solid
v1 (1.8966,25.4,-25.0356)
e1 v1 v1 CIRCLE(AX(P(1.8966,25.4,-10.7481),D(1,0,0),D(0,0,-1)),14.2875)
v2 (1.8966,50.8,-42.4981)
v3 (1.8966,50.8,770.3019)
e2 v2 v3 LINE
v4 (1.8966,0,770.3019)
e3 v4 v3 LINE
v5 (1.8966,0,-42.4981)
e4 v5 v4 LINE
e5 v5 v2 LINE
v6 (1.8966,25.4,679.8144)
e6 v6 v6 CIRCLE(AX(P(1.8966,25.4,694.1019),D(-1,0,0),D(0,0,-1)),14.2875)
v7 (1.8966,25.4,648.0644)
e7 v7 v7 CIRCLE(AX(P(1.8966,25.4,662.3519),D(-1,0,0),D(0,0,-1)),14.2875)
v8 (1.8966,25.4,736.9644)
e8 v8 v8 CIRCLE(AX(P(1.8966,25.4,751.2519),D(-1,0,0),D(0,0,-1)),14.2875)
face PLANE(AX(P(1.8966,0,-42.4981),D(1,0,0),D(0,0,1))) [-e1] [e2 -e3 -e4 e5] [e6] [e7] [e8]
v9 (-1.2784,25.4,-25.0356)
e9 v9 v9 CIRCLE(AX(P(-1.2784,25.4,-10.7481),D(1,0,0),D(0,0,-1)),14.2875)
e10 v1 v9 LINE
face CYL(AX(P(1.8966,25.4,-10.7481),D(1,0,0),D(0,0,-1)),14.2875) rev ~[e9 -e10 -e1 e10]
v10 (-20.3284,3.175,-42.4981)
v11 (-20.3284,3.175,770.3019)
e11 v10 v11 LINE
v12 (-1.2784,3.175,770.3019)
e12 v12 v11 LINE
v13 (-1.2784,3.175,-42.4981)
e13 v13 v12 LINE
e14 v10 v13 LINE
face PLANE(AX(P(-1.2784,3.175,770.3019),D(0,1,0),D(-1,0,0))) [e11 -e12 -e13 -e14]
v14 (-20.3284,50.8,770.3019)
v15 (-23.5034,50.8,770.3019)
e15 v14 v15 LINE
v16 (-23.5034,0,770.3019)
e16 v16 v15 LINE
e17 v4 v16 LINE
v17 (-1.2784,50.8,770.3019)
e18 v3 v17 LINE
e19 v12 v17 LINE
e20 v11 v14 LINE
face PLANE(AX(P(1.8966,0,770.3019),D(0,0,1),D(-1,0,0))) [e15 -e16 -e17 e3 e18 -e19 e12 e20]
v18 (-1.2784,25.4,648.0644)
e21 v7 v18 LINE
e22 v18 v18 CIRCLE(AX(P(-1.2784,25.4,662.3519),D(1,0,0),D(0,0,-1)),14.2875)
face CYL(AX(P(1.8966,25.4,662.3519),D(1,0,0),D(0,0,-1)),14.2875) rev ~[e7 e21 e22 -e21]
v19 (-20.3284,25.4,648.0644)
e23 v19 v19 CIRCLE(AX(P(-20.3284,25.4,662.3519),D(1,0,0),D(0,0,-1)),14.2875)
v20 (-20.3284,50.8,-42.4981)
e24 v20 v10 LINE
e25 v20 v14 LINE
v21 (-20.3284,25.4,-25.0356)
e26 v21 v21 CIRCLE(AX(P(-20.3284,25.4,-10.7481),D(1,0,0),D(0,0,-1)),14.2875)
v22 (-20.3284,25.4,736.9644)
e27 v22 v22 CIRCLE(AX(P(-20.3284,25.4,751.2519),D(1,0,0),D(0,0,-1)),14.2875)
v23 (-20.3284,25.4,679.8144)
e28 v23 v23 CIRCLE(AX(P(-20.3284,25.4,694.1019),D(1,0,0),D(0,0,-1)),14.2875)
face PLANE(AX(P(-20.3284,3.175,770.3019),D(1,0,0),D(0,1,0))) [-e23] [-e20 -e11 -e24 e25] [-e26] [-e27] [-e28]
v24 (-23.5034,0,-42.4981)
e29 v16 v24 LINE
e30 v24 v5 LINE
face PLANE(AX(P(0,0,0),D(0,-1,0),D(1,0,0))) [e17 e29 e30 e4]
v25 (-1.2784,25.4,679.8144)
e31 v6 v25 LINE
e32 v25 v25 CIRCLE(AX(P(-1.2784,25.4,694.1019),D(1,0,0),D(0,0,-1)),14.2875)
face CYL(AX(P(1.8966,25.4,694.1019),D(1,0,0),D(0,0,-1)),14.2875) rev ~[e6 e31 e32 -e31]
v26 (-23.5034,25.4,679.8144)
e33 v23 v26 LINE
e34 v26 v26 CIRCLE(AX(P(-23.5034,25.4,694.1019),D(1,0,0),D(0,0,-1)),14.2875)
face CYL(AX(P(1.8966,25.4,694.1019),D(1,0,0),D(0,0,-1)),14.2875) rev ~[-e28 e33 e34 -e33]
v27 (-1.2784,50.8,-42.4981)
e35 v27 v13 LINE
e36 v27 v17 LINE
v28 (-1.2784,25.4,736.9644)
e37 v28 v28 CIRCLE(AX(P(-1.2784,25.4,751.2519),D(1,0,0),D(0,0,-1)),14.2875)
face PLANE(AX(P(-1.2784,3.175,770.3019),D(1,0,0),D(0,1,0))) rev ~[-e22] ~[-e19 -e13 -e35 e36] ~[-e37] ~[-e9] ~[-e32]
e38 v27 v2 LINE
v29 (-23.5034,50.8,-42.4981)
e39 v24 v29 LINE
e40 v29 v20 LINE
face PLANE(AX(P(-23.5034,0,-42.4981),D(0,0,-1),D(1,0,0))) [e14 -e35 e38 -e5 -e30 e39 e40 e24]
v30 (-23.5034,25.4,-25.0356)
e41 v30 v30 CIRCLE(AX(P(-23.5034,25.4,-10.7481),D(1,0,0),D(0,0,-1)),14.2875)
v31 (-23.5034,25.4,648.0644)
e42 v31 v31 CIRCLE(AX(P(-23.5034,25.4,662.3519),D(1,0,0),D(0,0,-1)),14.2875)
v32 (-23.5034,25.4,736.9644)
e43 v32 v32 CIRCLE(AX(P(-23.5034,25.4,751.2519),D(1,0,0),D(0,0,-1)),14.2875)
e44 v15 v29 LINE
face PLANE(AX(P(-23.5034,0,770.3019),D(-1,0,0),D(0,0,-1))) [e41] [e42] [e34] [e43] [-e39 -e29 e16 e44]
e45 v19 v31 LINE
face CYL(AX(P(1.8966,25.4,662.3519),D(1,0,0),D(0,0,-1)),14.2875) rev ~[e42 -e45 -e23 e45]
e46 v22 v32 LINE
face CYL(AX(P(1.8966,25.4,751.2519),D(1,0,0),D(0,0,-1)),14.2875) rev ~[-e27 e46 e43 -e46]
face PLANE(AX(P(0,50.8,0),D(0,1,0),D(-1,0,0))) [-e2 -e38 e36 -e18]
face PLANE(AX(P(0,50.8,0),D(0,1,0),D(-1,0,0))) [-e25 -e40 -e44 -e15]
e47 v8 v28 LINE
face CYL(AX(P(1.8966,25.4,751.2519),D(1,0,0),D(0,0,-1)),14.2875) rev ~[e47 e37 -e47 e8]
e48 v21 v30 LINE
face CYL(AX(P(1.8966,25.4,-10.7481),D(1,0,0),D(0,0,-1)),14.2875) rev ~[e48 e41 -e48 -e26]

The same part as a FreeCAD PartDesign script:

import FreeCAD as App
import Part
import Sketcher

V = App.Vector
Q = App.Units.Quantity


def add_polygon(sketch, points):
    """Adds a closed chain of lines whose ends are joined by coincident constraints."""
    first, n = sketch.GeometryCount, len(points)
    for a, b in zip(points, points[1:] + points[:1]):
        sketch.addGeometry(Part.LineSegment(App.Vector(*a, 0), App.Vector(*b, 0)), False)
    for i in range(n):
        sketch.addConstraint(Sketcher.Constraint("Coincident", first + i, 2, first + (i + 1) % n, 1))

doc = App.newDocument("Part")
params = doc.addObject("Spreadsheet::Sheet", "Params")
for row, (alias, value) in enumerate([
    ("sketch1_width", "0.75 in"),
    ("sketch1_height", "31.75 in"),
    ("pad1_length", "0.125 in"),
    ("sketch2_width", "1 in"),
    ("sketch2_height", "32 in"),
    ("pad2_length", "2 in"),
    ("sketch3_width", "0.75 in"),
    ("pocket1_length", "40 in"),
    ("sketch4_diameter", "1.125 in"),
    ("pocket2_length", "2 in"),
    ("sketch5_diameter", "1.125 in"),
    ("pocket3_length", "3 in"),
], start=1):
    params.set(f"A{row}", alias)
    params.set(f"B{row}", "=" + value)
    params.setAlias(f"B{row}", alias)

body = doc.addObject("PartDesign::Body", "Body")

sketch1 = doc.addObject("Sketcher::SketchObject", "Sketch")
body.addObject(sketch1)
sketch1.AttachmentSupport = (doc.XZ_Plane, [""])
sketch1.MapMode = "FlatFace"
add_polygon(sketch1, [(-20.3284, -39.3231), (-1.2784, -39.3231), (-1.2784, 767.1269), (-20.3284, 767.1269)])
sketch1.addConstraint([
    Sketcher.Constraint("Horizontal", 0),
    Sketcher.Constraint("Vertical", 1),
    Sketcher.Constraint("Horizontal", 2),
    Sketcher.Constraint("Vertical", 3),
    Sketcher.Constraint("DistanceX", 0, 1, 0, 2, Q("0.75 in")),
    Sketcher.Constraint("DistanceY", 1, 1, 1, 2, Q("31.75 in")),
    Sketcher.Constraint("DistanceX", 0, 2, -1, 1, 1.2784),
    Sketcher.Constraint("DistanceY", 0, 2, -1, 1, 39.323),
])
sketch1.setExpression("Constraints[8]", "Params.sketch1_width")
sketch1.setExpression("Constraints[9]", "Params.sketch1_height")
pad1 = doc.addObject("PartDesign::Pad", "Pad")
body.addObject(pad1)
pad1.Profile = sketch1
pad1.setExpression("Length", "Params.pad1_length")
pad1.Reversed = True

sketch2 = doc.addObject("Sketcher::SketchObject", "Sketch001")
body.addObject(sketch2)
sketch2.AttachmentSupport = (doc.XZ_Plane, [""])
sketch2.MapMode = "FlatFace"
add_polygon(sketch2, [(1.8966, -42.4981), (-23.5034, -42.4981), (-23.5034, 770.3019), (1.8966, 770.3019)])
add_polygon(sketch2, [(-20.3284, 767.1269), (-20.3284, -39.3231), (-1.2784, -39.3231), (-1.2784, 767.1269)])
sketch2.addConstraint([
    Sketcher.Constraint("Horizontal", 0),
    Sketcher.Constraint("Vertical", 1),
    Sketcher.Constraint("Horizontal", 2),
    Sketcher.Constraint("Vertical", 3),
    Sketcher.Constraint("Vertical", 4),
    Sketcher.Constraint("Horizontal", 5),
    Sketcher.Constraint("Vertical", 6),
    Sketcher.Constraint("Horizontal", 7),
    Sketcher.Constraint("DistanceX", 0, 2, 0, 1, Q("1 in")),
    Sketcher.Constraint("DistanceY", 1, 1, 1, 2, Q("32 in")),
    Sketcher.Constraint("DistanceX", 0, 2, 4, 2, Q("0.125 in")),
    Sketcher.Constraint("DistanceY", 0, 2, 4, 2, Q("0.125 in")),
    Sketcher.Constraint("DistanceX", 5, 2, 3, 2, Q("0.125 in")),
    Sketcher.Constraint("DistanceY", 6, 2, 2, 2, Q("0.125 in")),
    Sketcher.Constraint("DistanceX", 0, 2, -1, 1, 23.5034),
    Sketcher.Constraint("DistanceY", 0, 2, -1, 1, 42.498),
])
sketch2.setExpression("Constraints[16]", "Params.sketch2_width")
sketch2.setExpression("Constraints[17]", "Params.sketch2_height")
pad2 = doc.addObject("PartDesign::Pad", "Pad001")
body.addObject(pad2)
pad2.Profile = sketch2
pad2.setExpression("Length", "Params.pad2_length")
pad2.Reversed = True

sketch3 = doc.addObject("Sketcher::SketchObject", "Sketch002")
body.addObject(sketch3)
sketch3.AttachmentSupport = (doc.XY_Plane, [""])
sketch3.MapMode = "FlatFace"
sketch3.AttachmentOffset = App.Placement(V(0, 0, 770.3019), App.Rotation())
add_polygon(sketch3, [(-1.2784, 50.8), (-20.3284, 50.8), (-20.3284, 3.175), (-1.2784, 3.175)])
sketch3.addConstraint([
    Sketcher.Constraint("Horizontal", 0),
    Sketcher.Constraint("Vertical", 1),
    Sketcher.Constraint("Horizontal", 2),
    Sketcher.Constraint("Vertical", 3),
    Sketcher.Constraint("DistanceY", -1, 1, 1, 2, Q("0.125 in")),
    Sketcher.Constraint("DistanceY", -1, 1, 0, 2, Q("2 in")),
    Sketcher.Constraint("DistanceX", 0, 2, 0, 1, Q("0.75 in")),
    Sketcher.Constraint("DistanceX", 0, 2, -1, 1, 20.3284),
])
sketch3.setExpression("Constraints[10]", "Params.sketch3_width")
pocket1 = doc.addObject("PartDesign::Pocket", "Pocket")
body.addObject(pocket1)
pocket1.Profile = sketch3
pocket1.setExpression("Length", "Params.pocket1_length")

sketch4 = doc.addObject("Sketcher::SketchObject", "Sketch003")
body.addObject(sketch4)
sketch4.AttachmentSupport = (doc.YZ_Plane, [""])
sketch4.MapMode = "FlatFace"
sketch4.AttachmentOffset = App.Placement(V(0, 0, 1.8966), App.Rotation())
sketch4.addGeometry([
    Part.Circle(V(25.4, 662.3519, 0), V(0, 0, 1), 14.2875),
    Part.Circle(V(25.4, 694.1019, 0), V(0, 0, 1), 14.2875),
    Part.Circle(V(25.4, 751.2519, 0), V(0, 0, 1), 14.2875),
], False)
sketch4.addConstraint([
    Sketcher.Constraint("Equal", 0, 1),
    Sketcher.Constraint("Equal", 1, 2),
    Sketcher.Constraint("Vertical", 0, 3, 1, 3),
    Sketcher.Constraint("Vertical", 1, 3, 2, 3),
    Sketcher.Constraint("Diameter", 0, Q("1.125 in")),
    Sketcher.Constraint("DistanceX", -1, 1, 0, 3, Q("1 in")),
    Sketcher.Constraint("DistanceY", 0, 3, 1, 3, Q("1.25 in")),
    Sketcher.Constraint("DistanceY", 1, 3, 2, 3, Q("2.25 in")),
    Sketcher.Constraint("DistanceY", -1, 1, 0, 3, 662.352),
])
sketch4.setExpression("Constraints[4]", "Params.sketch4_diameter")
pocket2 = doc.addObject("PartDesign::Pocket", "Pocket001")
body.addObject(pocket2)
pocket2.Profile = sketch4
pocket2.setExpression("Length", "Params.pocket2_length")

sketch5 = doc.addObject("Sketcher::SketchObject", "Sketch004")
body.addObject(sketch5)
sketch5.AttachmentSupport = (doc.YZ_Plane, [""])
sketch5.MapMode = "FlatFace"
sketch5.AttachmentOffset = App.Placement(V(0, 0, 1.8966), App.Rotation())
sketch5.addGeometry(Part.Circle(V(25.4, -10.7481, 0), V(0, 0, 1), 14.2875), False)
sketch5.addConstraint([
    Sketcher.Constraint("Diameter", 0, Q("1.125 in")),
    Sketcher.Constraint("DistanceX", -1, 1, 0, 3, Q("1 in")),
    Sketcher.Constraint("DistanceY", 0, 3, -1, 1, 10.748),
])
sketch5.setExpression("Constraints[0]", "Params.sketch5_diameter")
pocket3 = doc.addObject("PartDesign::Pocket", "Pocket002")
body.addObject(pocket3)
pocket3.Profile = sketch5
pocket3.setExpression("Length", "Params.pocket3_length")

doc.recompute()
